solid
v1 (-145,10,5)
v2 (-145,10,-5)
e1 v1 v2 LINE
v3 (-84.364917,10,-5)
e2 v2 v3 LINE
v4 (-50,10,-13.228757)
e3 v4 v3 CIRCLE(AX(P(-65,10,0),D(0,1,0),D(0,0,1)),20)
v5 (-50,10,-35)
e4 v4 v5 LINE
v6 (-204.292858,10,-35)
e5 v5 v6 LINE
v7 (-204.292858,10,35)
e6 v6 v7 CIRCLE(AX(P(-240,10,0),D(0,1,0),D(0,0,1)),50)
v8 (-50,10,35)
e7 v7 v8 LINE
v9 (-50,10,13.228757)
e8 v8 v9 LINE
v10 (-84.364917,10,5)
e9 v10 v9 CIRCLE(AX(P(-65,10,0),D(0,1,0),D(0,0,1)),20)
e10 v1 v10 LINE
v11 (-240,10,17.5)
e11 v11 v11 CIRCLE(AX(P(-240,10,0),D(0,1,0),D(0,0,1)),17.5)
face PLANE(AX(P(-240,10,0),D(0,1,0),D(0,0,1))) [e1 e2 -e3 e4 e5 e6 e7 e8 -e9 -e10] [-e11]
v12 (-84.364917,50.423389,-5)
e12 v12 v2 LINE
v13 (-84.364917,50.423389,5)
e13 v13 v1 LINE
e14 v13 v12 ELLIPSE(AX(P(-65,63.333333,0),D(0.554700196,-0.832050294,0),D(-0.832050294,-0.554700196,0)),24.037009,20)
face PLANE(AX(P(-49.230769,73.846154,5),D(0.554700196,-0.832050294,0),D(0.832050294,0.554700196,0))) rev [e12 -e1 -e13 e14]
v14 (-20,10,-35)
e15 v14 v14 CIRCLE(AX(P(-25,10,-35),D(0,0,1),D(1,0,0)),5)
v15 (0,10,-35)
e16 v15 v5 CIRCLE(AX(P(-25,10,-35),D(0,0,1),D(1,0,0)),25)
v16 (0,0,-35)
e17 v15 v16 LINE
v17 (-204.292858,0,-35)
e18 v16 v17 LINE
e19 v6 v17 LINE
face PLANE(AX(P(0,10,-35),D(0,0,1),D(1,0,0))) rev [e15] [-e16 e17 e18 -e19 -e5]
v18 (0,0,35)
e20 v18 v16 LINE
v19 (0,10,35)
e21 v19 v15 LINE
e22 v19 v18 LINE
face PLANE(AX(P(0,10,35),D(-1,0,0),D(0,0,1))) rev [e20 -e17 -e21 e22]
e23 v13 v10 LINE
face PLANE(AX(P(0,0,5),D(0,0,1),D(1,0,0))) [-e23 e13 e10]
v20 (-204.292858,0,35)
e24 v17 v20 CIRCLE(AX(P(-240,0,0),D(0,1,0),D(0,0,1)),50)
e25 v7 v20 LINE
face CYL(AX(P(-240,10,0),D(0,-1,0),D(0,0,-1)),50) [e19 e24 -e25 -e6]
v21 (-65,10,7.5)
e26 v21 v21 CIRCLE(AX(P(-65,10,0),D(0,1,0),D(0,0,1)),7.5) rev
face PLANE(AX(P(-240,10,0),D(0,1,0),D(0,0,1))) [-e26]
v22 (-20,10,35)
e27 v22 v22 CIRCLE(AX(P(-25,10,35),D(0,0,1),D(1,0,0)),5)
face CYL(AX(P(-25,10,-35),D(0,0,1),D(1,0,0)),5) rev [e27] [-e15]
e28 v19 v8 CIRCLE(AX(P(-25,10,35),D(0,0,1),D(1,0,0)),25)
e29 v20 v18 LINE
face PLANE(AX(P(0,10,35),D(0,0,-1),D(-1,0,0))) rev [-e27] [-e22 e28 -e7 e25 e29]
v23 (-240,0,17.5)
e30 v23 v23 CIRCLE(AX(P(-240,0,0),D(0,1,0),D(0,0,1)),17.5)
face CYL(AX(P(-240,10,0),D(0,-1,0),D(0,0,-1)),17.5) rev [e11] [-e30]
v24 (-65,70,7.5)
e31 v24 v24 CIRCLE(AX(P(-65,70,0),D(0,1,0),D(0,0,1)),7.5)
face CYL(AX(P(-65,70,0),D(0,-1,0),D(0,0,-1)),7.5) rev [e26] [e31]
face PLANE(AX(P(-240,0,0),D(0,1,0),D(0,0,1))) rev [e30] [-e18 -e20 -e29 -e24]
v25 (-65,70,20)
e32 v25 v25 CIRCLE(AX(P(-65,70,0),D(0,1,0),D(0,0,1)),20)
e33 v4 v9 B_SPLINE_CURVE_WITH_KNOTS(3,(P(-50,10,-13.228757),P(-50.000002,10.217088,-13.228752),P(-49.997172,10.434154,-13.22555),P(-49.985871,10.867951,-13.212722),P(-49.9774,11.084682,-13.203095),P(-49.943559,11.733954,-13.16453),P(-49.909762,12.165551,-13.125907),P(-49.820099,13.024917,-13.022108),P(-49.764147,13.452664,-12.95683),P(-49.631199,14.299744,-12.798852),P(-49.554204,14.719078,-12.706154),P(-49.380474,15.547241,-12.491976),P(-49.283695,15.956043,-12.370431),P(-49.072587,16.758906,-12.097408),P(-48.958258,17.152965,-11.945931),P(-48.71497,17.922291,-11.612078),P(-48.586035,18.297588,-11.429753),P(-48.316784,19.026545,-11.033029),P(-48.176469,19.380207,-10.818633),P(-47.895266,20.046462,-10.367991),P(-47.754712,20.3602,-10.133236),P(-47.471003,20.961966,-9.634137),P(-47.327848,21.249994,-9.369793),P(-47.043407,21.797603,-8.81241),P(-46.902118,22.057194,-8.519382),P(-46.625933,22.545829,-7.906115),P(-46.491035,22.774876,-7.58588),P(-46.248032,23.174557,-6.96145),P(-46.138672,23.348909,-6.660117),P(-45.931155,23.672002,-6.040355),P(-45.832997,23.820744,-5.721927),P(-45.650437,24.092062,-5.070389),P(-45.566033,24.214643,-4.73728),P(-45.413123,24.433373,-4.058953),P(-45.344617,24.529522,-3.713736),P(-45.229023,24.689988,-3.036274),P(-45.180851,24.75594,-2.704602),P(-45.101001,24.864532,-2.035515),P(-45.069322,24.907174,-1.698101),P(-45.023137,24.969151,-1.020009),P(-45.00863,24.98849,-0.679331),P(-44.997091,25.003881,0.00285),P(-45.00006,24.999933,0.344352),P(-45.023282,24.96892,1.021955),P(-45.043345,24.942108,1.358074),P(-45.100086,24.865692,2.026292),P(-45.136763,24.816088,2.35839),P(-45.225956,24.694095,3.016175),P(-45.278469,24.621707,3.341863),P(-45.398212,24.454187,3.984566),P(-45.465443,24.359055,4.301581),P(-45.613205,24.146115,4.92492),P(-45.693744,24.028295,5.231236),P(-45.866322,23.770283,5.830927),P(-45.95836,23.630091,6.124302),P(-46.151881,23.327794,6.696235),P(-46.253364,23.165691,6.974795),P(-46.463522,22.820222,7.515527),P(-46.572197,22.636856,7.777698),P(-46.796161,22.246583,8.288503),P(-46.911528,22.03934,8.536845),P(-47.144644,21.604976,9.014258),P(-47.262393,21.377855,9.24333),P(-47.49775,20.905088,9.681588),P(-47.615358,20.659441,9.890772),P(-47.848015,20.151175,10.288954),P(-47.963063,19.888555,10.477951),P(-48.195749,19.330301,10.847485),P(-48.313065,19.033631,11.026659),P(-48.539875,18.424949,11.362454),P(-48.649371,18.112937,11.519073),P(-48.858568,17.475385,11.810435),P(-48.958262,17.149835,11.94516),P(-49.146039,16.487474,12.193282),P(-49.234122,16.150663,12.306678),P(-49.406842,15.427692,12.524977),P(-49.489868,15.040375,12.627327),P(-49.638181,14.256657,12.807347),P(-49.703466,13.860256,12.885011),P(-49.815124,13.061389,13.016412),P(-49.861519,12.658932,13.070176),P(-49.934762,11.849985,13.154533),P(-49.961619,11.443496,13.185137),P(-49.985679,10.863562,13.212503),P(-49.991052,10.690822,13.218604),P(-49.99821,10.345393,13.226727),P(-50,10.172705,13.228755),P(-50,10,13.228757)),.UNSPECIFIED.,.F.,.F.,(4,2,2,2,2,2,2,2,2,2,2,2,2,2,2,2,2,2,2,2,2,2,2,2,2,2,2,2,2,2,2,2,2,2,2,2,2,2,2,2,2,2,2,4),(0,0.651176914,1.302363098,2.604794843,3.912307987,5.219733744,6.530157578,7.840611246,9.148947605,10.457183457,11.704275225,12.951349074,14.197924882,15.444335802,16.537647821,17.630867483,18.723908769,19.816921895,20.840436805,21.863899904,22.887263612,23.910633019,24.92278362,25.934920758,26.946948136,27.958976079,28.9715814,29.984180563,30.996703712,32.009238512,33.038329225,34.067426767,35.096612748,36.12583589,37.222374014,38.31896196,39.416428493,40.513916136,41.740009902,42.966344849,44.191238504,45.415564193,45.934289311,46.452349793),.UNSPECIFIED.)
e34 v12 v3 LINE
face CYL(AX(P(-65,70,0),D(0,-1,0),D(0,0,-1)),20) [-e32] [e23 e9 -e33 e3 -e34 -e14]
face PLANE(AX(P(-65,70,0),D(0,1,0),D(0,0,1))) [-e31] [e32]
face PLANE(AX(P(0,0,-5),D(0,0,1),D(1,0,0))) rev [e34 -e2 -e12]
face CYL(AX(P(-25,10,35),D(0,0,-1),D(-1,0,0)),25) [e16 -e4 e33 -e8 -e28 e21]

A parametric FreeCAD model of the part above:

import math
import FreeCAD as App
import Part
import Sketcher

V = App.Vector
Q = App.Units.Quantity

doc = App.newDocument("Part")
params = doc.addObject("Spreadsheet::Sheet", "Params")
for row, (alias, value) in enumerate([
    ("sketch1_diameter", "35 mm"),
    ("sketch1_radius", "50 mm"),
    ("sketch1_height", "70 mm"),
    ("pad1_length", "10 mm"),
    ("sketch2_diameter", "40 mm"),
    ("sketch2_diameter2", "15 mm"),
    ("pad2_length", "60 mm"),
    ("pad3_length", "10 mm"),
    ("sketch4_radius", "25 mm"),
    ("pad4_length", "70 mm"),
    ("sketch5_diameter", "10 mm"),
    ("pocket1_length", "70 mm"),
], start=1):
    params.set(f"A{row}", alias)
    params.set(f"B{row}", "=" + value)
    params.setAlias(f"B{row}", alias)

body = doc.addObject("PartDesign::Body", "Body")

# Sketch on XZ plane
sketch1 = body.newObject("Sketcher::SketchObject", "Sketch")
sketch1.AttachmentSupport = (doc.getObject("XZ_Plane"), [""])
sketch1.MapMode = "FlatFace"
sketch1.addGeometry([
    Part.LineSegment(V(-204, 35, 0), V(0, 35, 0)),  # 0
    Part.LineSegment(V(0, 35, 0), V(0, -35, 0)),  # 1
    Part.LineSegment(V(0, -35, 0), V(-204, -35, 0)),  # 2
    Part.ArcOfCircle(Part.Circle(V(-240, 0, 0), V(0, 0, 1), 50), math.radians(44), math.radians(316)),  # 3
    Part.Circle(V(-240, 0, 0), V(0, 0, 1), 18),  # 4
], False)
sketch1.addConstraint([
    Sketcher.Constraint("Coincident", 0, 2, 1, 1),
    Sketcher.Constraint("Coincident", 1, 2, 2, 1),
    Sketcher.Constraint("Coincident", 2, 2, 3, 2),
    Sketcher.Constraint("Coincident", 3, 1, 0, 1),
    Sketcher.Constraint("Horizontal", 0),
    Sketcher.Constraint("Vertical", 1),
    Sketcher.Constraint("Horizontal", 2),
    Sketcher.Constraint("Coincident", 4, 3, 3, 3),
    Sketcher.Constraint("Symmetric", 0, 2, 1, 2, -1, 1),
    Sketcher.Constraint("PointOnObject", 3, 3, -1),
    Sketcher.Constraint("Diameter", 4, Q("35 mm")),
    Sketcher.Constraint("Radius", 3, Q("50 mm")),
    Sketcher.Constraint("DistanceY", 1, 2, 1, 1, Q("70 mm")),
    Sketcher.Constraint("DistanceX", 3, 3, -1, 1, Q("240 mm")),
])
sketch1.setExpression("Constraints[10]", "Params.sketch1_diameter")
sketch1.setExpression("Constraints[11]", "Params.sketch1_radius")
sketch1.setExpression("Constraints[12]", "Params.sketch1_height")
pad1 = body.newObject("PartDesign::Pad", "Pad")
pad1.Profile = sketch1
pad1.setExpression("Length", "Params.pad1_length")
pad1.Reversed = True

# Sketch on XZ plane
sketch2 = body.newObject("Sketcher::SketchObject", "Sketch001")
sketch2.AttachmentSupport = (doc.getObject("XZ_Plane"), [""])
sketch2.MapMode = "FlatFace"
sketch2.AttachmentOffset = App.Placement(V(0, 0, -10), App.Rotation())
sketch2.addGeometry([
    Part.Circle(V(-65, 0, 0), V(0, 0, 1), 20),
    Part.Circle(V(-65, 0, 0), V(0, 0, 1), 8),
], False)
sketch2.addConstraint([
    Sketcher.Constraint("Coincident", 1, 3, 0, 3),
    Sketcher.Constraint("PointOnObject", 0, 3, -1),
    Sketcher.Constraint("Diameter", 0, Q("40 mm")),
    Sketcher.Constraint("Diameter", 1, Q("15 mm")),
    Sketcher.Constraint("DistanceX", 0, 3, -1, 1, Q("65 mm")),
])
sketch2.setExpression("Constraints[2]", "Params.sketch2_diameter")
sketch2.setExpression("Constraints[3]", "Params.sketch2_diameter2")
pad2 = body.newObject("PartDesign::Pad", "Pad001")
pad2.Profile = sketch2
pad2.setExpression("Length", "Params.pad2_length")
pad2.Reversed = True

# Sketch on XY plane
sketch3 = body.newObject("Sketcher::SketchObject", "Sketch002")
sketch3.AttachmentSupport = (doc.getObject("XY_Plane"), [""])
sketch3.MapMode = "FlatFace"
sketch3.addGeometry([
    Part.LineSegment(V(-145, 10, 0), V(-81, 10, 0)),
    Part.LineSegment(V(-81, 10, 0), V(-81, 53, 0)),
    Part.LineSegment(V(-81, 53, 0), V(-145, 10, 0)),
], False)
sketch3.addConstraint([
    Sketcher.Constraint("Coincident", 0, 2, 1, 1),
    Sketcher.Constraint("Coincident", 1, 2, 2, 1),
    Sketcher.Constraint("Coincident", 2, 2, 0, 1),
    Sketcher.Constraint("Horizontal", 0),
    Sketcher.Constraint("Vertical", 1),
    Sketcher.Constraint("DistanceY", -1, 1, 0, 2, Q("10 mm")),
    Sketcher.Constraint("DistanceX", 2, 2, -1, 1, Q("145 mm")),
    Sketcher.Constraint("DistanceX", 0, 1, 0, 2, Q("63.944245 mm")),
    Sketcher.Constraint("DistanceY", 1, 1, 1, 2, Q("42.629496 mm")),
])
pad3 = body.newObject("PartDesign::Pad", "Pad002")
pad3.Profile = sketch3
pad3.setExpression("Length", "Params.pad3_length")
pad3.Midplane = True

# Sketch on XY plane
sketch4 = body.newObject("Sketcher::SketchObject", "Sketch003")
sketch4.AttachmentSupport = (doc.getObject("XY_Plane"), [""])
sketch4.MapMode = "FlatFace"
sketch4.addGeometry([
    Part.LineSegment(V(-50, 10, 0), V(0, 10, 0)),
    Part.ArcOfCircle(Part.Circle(V(-25, 10, 0), V(0, 0, 1), 25), math.radians(0), math.radians(180)),
], False)
sketch4.addConstraint([
    Sketcher.Constraint("Coincident", 0, 1, 1, 2),
    Sketcher.Constraint("Coincident", 1, 1, 0, 2),
    Sketcher.Constraint("Horizontal", 0),
    Sketcher.Constraint("PointOnObject", 1, 1, -2),
    Sketcher.Constraint("Horizontal", 1, 3, 0, 1),
    Sketcher.Constraint("Radius", 1, Q("25 mm")),
    Sketcher.Constraint("DistanceY", -1, 1, 1, 3, Q("10 mm")),
])
sketch4.setExpression("Constraints[5]", "Params.sketch4_radius")
pad4 = body.newObject("PartDesign::Pad", "Pad003")
pad4.Profile = sketch4
pad4.setExpression("Length", "Params.pad4_length")
pad4.Midplane = True

# Sketch on XY plane
sketch5 = body.newObject("Sketcher::SketchObject", "Sketch004")
sketch5.AttachmentSupport = (doc.getObject("XY_Plane"), [""])
sketch5.MapMode = "FlatFace"
sketch5.AttachmentOffset = App.Placement(V(0, 0, 35), App.Rotation())
sketch5.addGeometry(Part.Circle(V(-25, 10, 0), V(0, 0, 1), 5), False)
sketch5.addConstraint([
    Sketcher.Constraint("Diameter", 0, Q("10 mm")),
    Sketcher.Constraint("DistanceX", 0, 3, -1, 1, Q("25 mm")),
    Sketcher.Constraint("DistanceY", -1, 1, 0, 3, Q("10 mm")),
])
sketch5.setExpression("Constraints[0]", "Params.sketch5_diameter")
pocket1 = body.newObject("PartDesign::Pocket", "Pocket")
pocket1.Profile = sketch5
pocket1.setExpression("Length", "Params.pocket1_length")

doc.recompute()
